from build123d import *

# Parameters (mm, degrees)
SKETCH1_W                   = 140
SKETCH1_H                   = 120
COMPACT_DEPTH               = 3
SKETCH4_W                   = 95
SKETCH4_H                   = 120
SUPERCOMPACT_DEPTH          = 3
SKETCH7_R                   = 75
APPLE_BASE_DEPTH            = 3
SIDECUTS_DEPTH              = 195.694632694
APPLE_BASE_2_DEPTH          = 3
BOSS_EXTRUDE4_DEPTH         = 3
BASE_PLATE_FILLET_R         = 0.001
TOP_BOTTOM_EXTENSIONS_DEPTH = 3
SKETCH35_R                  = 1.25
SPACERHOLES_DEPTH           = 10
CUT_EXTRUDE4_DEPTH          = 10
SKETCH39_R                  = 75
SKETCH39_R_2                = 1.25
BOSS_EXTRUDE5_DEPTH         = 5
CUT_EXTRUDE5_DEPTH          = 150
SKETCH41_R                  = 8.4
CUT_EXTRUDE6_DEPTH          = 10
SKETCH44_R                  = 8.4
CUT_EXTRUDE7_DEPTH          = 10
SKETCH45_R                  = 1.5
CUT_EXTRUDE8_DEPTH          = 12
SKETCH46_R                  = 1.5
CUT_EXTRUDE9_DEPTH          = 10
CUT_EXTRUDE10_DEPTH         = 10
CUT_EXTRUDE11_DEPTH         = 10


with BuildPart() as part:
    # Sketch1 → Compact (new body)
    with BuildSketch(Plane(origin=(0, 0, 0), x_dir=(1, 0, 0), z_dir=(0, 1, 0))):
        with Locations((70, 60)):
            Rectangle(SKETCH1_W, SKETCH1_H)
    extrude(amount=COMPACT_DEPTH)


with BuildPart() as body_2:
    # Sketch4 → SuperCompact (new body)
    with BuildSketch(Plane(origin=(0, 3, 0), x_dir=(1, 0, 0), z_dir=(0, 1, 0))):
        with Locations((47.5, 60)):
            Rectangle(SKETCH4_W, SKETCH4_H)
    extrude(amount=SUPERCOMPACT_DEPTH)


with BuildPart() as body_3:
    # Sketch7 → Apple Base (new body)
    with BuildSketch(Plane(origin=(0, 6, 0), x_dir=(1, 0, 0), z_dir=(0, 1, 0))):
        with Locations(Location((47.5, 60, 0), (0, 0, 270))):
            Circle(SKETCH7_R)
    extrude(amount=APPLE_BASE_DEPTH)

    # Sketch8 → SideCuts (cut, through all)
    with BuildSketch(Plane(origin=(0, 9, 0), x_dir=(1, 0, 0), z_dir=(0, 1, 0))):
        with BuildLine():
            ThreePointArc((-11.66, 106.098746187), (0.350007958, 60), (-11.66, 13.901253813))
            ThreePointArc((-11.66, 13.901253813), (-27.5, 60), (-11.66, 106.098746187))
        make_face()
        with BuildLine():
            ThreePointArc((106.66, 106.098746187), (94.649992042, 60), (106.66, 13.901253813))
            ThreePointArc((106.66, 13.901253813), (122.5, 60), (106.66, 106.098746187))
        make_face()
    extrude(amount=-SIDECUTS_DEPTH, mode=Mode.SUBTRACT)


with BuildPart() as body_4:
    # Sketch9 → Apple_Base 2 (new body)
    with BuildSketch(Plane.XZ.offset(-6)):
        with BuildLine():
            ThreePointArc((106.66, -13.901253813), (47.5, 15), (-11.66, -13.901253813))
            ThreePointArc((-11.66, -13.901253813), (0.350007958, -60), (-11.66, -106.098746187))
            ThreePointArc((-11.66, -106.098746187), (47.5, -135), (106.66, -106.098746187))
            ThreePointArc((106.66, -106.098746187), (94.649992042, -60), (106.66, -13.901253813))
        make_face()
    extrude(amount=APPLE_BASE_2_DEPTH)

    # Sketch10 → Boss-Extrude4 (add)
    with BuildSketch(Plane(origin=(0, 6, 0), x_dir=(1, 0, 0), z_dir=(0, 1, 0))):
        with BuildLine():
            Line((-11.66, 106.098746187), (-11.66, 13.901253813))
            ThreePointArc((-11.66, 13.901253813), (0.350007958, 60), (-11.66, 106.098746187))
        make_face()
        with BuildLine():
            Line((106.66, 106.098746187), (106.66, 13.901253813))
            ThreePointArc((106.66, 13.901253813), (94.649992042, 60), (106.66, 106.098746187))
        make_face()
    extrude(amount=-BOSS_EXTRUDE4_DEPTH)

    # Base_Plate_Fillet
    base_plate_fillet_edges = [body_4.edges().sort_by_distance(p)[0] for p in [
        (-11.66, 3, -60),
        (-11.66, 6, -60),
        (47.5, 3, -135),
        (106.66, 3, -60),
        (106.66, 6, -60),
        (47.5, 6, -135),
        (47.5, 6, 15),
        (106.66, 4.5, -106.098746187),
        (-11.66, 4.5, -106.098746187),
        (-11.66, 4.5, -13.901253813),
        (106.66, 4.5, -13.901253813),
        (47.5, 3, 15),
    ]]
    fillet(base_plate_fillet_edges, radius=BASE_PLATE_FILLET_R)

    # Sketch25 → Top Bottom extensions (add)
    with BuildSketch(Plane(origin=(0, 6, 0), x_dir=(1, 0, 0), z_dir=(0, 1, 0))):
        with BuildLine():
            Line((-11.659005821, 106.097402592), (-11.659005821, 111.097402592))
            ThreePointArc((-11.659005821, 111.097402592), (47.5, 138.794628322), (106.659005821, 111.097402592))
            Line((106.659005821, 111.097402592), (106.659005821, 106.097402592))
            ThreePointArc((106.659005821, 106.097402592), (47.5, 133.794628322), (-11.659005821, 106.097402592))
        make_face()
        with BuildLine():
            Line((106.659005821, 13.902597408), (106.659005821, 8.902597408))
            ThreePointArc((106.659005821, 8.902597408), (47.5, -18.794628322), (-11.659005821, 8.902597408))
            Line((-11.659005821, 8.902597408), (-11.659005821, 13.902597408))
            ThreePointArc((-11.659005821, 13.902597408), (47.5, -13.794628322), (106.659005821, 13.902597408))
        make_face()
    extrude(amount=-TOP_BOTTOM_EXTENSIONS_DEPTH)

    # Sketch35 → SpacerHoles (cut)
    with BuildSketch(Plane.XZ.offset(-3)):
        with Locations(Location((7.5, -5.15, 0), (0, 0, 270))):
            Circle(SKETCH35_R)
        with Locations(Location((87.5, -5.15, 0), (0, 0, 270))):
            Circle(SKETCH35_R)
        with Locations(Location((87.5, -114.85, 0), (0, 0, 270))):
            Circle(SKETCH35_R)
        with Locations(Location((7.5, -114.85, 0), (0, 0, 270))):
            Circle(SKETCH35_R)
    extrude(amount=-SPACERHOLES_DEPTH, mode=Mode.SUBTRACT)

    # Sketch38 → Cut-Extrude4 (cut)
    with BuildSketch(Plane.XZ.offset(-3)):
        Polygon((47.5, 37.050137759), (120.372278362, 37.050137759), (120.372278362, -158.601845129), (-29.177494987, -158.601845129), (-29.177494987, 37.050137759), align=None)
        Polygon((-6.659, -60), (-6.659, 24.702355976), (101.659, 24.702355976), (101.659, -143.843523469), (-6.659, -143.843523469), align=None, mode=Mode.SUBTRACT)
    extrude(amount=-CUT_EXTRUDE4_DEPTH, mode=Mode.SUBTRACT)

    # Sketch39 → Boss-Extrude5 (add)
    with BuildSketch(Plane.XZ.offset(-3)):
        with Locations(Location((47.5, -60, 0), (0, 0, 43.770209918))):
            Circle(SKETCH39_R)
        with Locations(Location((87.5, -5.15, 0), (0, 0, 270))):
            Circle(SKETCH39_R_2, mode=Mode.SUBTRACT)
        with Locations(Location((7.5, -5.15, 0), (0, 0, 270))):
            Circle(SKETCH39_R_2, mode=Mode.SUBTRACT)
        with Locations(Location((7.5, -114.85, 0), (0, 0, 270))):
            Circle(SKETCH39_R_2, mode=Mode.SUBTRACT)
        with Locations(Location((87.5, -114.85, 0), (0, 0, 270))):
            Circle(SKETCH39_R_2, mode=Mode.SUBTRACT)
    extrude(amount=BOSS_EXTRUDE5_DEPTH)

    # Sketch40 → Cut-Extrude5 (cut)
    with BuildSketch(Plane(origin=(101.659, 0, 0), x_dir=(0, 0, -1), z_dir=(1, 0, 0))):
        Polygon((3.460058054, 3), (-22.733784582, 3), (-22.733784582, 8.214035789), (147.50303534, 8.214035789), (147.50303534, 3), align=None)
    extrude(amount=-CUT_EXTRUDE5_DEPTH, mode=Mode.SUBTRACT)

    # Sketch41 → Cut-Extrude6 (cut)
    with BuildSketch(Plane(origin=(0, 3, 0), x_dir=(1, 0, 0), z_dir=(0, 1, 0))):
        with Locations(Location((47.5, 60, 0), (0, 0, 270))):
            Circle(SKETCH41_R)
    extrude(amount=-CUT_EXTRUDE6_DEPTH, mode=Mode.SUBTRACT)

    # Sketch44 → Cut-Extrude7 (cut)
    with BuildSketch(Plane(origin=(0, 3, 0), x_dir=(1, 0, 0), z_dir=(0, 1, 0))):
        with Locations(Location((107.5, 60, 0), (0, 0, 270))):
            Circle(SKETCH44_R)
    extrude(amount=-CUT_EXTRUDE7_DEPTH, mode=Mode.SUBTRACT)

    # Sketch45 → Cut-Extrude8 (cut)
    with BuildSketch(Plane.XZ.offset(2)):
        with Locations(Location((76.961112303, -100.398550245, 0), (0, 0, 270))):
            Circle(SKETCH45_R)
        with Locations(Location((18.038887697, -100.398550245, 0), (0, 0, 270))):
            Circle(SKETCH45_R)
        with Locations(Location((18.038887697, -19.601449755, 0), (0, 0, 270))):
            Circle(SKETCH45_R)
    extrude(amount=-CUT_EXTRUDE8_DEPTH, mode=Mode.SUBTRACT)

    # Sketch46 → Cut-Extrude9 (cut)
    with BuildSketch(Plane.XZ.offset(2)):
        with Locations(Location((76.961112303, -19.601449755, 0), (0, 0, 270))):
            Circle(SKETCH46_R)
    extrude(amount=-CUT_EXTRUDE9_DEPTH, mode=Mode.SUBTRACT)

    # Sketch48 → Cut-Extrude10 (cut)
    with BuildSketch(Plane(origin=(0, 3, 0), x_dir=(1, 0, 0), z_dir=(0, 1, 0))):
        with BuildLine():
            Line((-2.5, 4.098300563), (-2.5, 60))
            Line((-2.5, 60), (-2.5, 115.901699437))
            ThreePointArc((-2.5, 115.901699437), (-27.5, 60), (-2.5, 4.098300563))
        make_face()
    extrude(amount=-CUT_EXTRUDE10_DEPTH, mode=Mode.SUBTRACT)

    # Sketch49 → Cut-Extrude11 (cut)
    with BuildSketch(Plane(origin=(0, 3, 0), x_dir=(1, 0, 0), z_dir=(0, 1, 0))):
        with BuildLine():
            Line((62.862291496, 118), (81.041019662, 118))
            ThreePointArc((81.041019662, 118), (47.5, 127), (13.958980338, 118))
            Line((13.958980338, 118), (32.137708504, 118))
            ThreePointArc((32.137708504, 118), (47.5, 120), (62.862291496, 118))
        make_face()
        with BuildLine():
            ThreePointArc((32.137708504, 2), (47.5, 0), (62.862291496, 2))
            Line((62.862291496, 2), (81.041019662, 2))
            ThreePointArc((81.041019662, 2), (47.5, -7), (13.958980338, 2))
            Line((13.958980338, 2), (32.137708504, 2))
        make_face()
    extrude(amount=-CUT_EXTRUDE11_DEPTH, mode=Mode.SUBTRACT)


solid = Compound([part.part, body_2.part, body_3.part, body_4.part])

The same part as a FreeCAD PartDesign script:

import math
import FreeCAD as App
import Part
import Sketcher

V = App.Vector


def add_polygon(sketch, points):
    """Adds a closed chain of lines whose ends are joined by coincident constraints."""
    first, n = sketch.GeometryCount, len(points)
    for a, b in zip(points, points[1:] + points[:1]):
        sketch.addGeometry(Part.LineSegment(App.Vector(*a, 0), App.Vector(*b, 0)), False)
    for i in range(n):
        sketch.addConstraint(Sketcher.Constraint("Coincident", first + i, 2, first + (i + 1) % n, 1))

doc = App.newDocument("Part")
body = doc.addObject("PartDesign::Body", "Body")

sketch1 = body.newObject("Sketcher::SketchObject", "Sketch")
sketch1.AttachmentSupport = (doc.getObject("XZ_Plane"), [""])
sketch1.MapMode = "FlatFace"
add_polygon(sketch1, [(0, -120), (0, 0), (140, 0), (140, -120)])
sketch1.addConstraint(Sketcher.Constraint("Vertical", 0))
sketch1.addConstraint(Sketcher.Constraint("Horizontal", 1))
sketch1.addConstraint(Sketcher.Constraint("Vertical", 2))
sketch1.addConstraint(Sketcher.Constraint("Horizontal", 3))
sketch1.addConstraint(Sketcher.Constraint("Coincident", 0, 2, -1, 1))
sketch1.addConstraint(Sketcher.Constraint("DistanceX", 1, 1, 1, 2, 140.0))
sketch1.addConstraint(Sketcher.Constraint("DistanceY", 0, 1, 0, 2, 120.0))
pad1 = body.newObject("PartDesign::Pad", "Pad")
pad1.Profile = sketch1
pad1.Length = 3
pad1.Reversed = True
body2 = doc.addObject("PartDesign::Body", "Body001")

sketch2 = body2.newObject("Sketcher::SketchObject", "Sketch001")
sketch2.AttachmentSupport = (doc.getObject("XZ_Plane001"), [""])
sketch2.MapMode = "FlatFace"
sketch2.AttachmentOffset = App.Placement(V(0, 0, -3), App.Rotation())
add_polygon(sketch2, [(0, -120), (0, 0), (95, 0), (95, -120)])
sketch2.addConstraint(Sketcher.Constraint("Vertical", 0))
sketch2.addConstraint(Sketcher.Constraint("Horizontal", 1))
sketch2.addConstraint(Sketcher.Constraint("Vertical", 2))
sketch2.addConstraint(Sketcher.Constraint("Horizontal", 3))
sketch2.addConstraint(Sketcher.Constraint("Coincident", 0, 2, -1, 1))
sketch2.addConstraint(Sketcher.Constraint("DistanceX", 1, 1, 1, 2, 95.0))
sketch2.addConstraint(Sketcher.Constraint("DistanceY", 0, 1, 0, 2, 120.0))
pad2 = body2.newObject("PartDesign::Pad", "Pad001")
pad2.Profile = sketch2
pad2.Length = 3
pad2.Reversed = True
body3 = doc.addObject("PartDesign::Body", "Body002")

sketch3 = body3.newObject("Sketcher::SketchObject", "Sketch002")
sketch3.AttachmentSupport = (doc.getObject("XZ_Plane002"), [""])
sketch3.MapMode = "FlatFace"
sketch3.AttachmentOffset = App.Placement(V(0, 0, -6), App.Rotation())
sketch3.addGeometry(Part.Circle(V(48, -60, 0), V(0, 0, 1), 75), False)
sketch3.addConstraint(Sketcher.Constraint("Diameter", 0, 150.0))
sketch3.addConstraint(Sketcher.Constraint("DistanceY", 0, 3, -1, 1, 60.0))
sketch3.addConstraint(Sketcher.Constraint("DistanceX", -1, 1, 0, 3, 47.5))
pad3 = body3.newObject("PartDesign::Pad", "Pad002")
pad3.Profile = sketch3
pad3.Length = 3
pad3.Reversed = True

sketch4 = body3.newObject("Sketcher::SketchObject", "Sketch003")
sketch4.AttachmentSupport = (doc.getObject("XZ_Plane002"), [""])
sketch4.MapMode = "FlatFace"
sketch4.AttachmentOffset = App.Placement(V(0, 0, -9), App.Rotation())
sketch4.addGeometry(Part.ArcOfCircle(Part.Circle(V(-94, -60, 0), V(0, 0, 1), 94), math.radians(-29), math.radians(29)), False)
sketch4.addGeometry(Part.ArcOfCircle(Part.Circle(V(48, -60, 0), V(0, 0, 1), 75), math.radians(142), math.radians(218)), False)
sketch4.addGeometry(Part.ArcOfCircle(Part.Circle(V(189, -60, 0), V(0, 0, 1), 94), math.radians(151), math.radians(209)), False)
sketch4.addGeometry(Part.ArcOfCircle(Part.Circle(V(48, -60, 0), V(0, 0, 1), 75), math.radians(-38), math.radians(38)), False)
sketch4.addConstraint(Sketcher.Constraint("Coincident", 0, 1, 1, 2))
sketch4.addConstraint(Sketcher.Constraint("Coincident", 1, 1, 0, 2))
sketch4.addConstraint(Sketcher.Constraint("Coincident", 2, 1, 3, 2))
sketch4.addConstraint(Sketcher.Constraint("Coincident", 3, 1, 2, 2))
sketch4.addConstraint(Sketcher.Constraint("Coincident", 3, 3, 1, 3))
sketch4.addConstraint(Sketcher.Constraint("Equal", 0, 2))
sketch4.addConstraint(Sketcher.Constraint("Equal", 1, 3))
sketch4.addConstraint(Sketcher.Constraint("Horizontal", 0, 3, 1, 3))
sketch4.addConstraint(Sketcher.Constraint("Horizontal", 1, 3, 2, 3))
sketch4.addConstraint(Sketcher.Constraint("Horizontal", 1, 1, 2, 1))
sketch4.addConstraint(Sketcher.Constraint("Radius", 1, 75.0))
sketch4.addConstraint(Sketcher.Constraint("DistanceY", 0, 3, -1, 1, 60.0))
sketch4.addConstraint(Sketcher.Constraint("DistanceX", -1, 1, 1, 3, 47.5))
sketch4.addConstraint(Sketcher.Constraint("DistanceX", 0, 1, -1, 1, 11.66))
sketch4.addConstraint(Sketcher.Constraint("Radius", 0, 94.476819))
pocket1 = body3.newObject("PartDesign::Pocket", "Pocket")
pocket1.Profile = sketch4
pocket1.Type = "ThroughAll"
pocket1.Reversed = True
body4 = doc.addObject("PartDesign::Body", "Body003")

sketch5 = body4.newObject("Sketcher::SketchObject", "Sketch004")
sketch5.AttachmentSupport = (doc.getObject("XZ_Plane003"), [""])
sketch5.MapMode = "FlatFace"
sketch5.AttachmentOffset = App.Placement(V(0, 0, -6), App.Rotation())
sketch5.addGeometry(Part.ArcOfCircle(Part.Circle(V(48, -60, 0), V(0, 0, 1), 75), math.radians(38), math.radians(142)), False)
sketch5.addGeometry(Part.ArcOfCircle(Part.Circle(V(-94, -60, 0), V(0, 0, 1), 94), math.radians(-29), math.radians(29)), False)
sketch5.addGeometry(Part.ArcOfCircle(Part.Circle(V(48, -60, 0), V(0, 0, 1), 75), math.radians(-142), math.radians(-38)), False)
sketch5.addGeometry(Part.ArcOfCircle(Part.Circle(V(189, -60, 0), V(0, 0, 1), 94), math.radians(151), math.radians(209)), False)
sketch5.addConstraint(Sketcher.Constraint("Coincident", 0, 2, 1, 2))
sketch5.addConstraint(Sketcher.Constraint("Coincident", 1, 1, 2, 1))
sketch5.addConstraint(Sketcher.Constraint("Coincident", 2, 2, 3, 2))
sketch5.addConstraint(Sketcher.Constraint("Coincident", 3, 1, 0, 1))
sketch5.addConstraint(Sketcher.Constraint("Coincident", 2, 3, 0, 3))
sketch5.addConstraint(Sketcher.Constraint("Equal", 0, 2))
sketch5.addConstraint(Sketcher.Constraint("Equal", 1, 3))
sketch5.addConstraint(Sketcher.Constraint("Horizontal", 0, 3, 1, 3))
sketch5.addConstraint(Sketcher.Constraint("Horizontal", 2, 3, 3, 3))
sketch5.addConstraint(Sketcher.Constraint("Horizontal", 1, 1, 2, 2))
sketch5.addConstraint(Sketcher.Constraint("Radius", 0, 75.0))
sketch5.addConstraint(Sketcher.Constraint("DistanceY", 0, 3, -1, 1, 60.0))
sketch5.addConstraint(Sketcher.Constraint("DistanceX", -1, 1, 0, 3, 47.5))
sketch5.addConstraint(Sketcher.Constraint("DistanceX", 0, 2, -1, 1, 11.66))
sketch5.addConstraint(Sketcher.Constraint("Radius", 1, 94.476819))
pad4 = body4.newObject("PartDesign::Pad", "Pad003")
pad4.Profile = sketch5
pad4.Length = 3

sketch6 = body4.newObject("Sketcher::SketchObject", "Sketch005")
sketch6.AttachmentSupport = (doc.getObject("XZ_Plane003"), [""])
sketch6.MapMode = "FlatFace"
sketch6.AttachmentOffset = App.Placement(V(0, 0, -6), App.Rotation())
sketch6.addGeometry(Part.LineSegment(V(-12, -106, 0), V(-12, -14, 0)), False)
sketch6.addGeometry(Part.ArcOfCircle(Part.Circle(V(-94, -60, 0), V(0, 0, 1), 94), math.radians(-29), math.radians(29)), False)
sketch6.addGeometry(Part.LineSegment(V(107, -14, 0), V(107, -106, 0)), False)
sketch6.addGeometry(Part.ArcOfCircle(Part.Circle(V(189, -60, 0), V(0, 0, 1), 94), math.radians(151), math.radians(209)), False)
sketch6.addConstraint(Sketcher.Constraint("Coincident", 0, 1, 1, 1))
sketch6.addConstraint(Sketcher.Constraint("Coincident", 1, 2, 0, 2))
sketch6.addConstraint(Sketcher.Constraint("Coincident", 2, 1, 3, 1))
sketch6.addConstraint(Sketcher.Constraint("Coincident", 3, 2, 2, 2))
sketch6.addConstraint(Sketcher.Constraint("Vertical", 0))
sketch6.addConstraint(Sketcher.Constraint("Vertical", 2))
sketch6.addConstraint(Sketcher.Constraint("Equal", 1, 3))
sketch6.addConstraint(Sketcher.Constraint("Horizontal", 1, 3, 3, 3))
sketch6.addConstraint(Sketcher.Constraint("Horizontal", 1, 2, 2, 1))
sketch6.addConstraint(Sketcher.Constraint("DistanceY", 1, 3, -1, 1, 60.0))
sketch6.addConstraint(Sketcher.Constraint("DistanceX", 0, 1, -1, 1, 11.66))
sketch6.addConstraint(Sketcher.Constraint("DistanceX", -1, 1, 2, 1, 106.66))
sketch6.addConstraint(Sketcher.Constraint("Radius", 1, 94.476819))
sketch6.addConstraint(Sketcher.Constraint("DistanceY", 0, 1, 0, 2, 92.197492))
pad5 = body4.newObject("PartDesign::Pad", "Pad004")
pad5.Profile = sketch6
pad5.Length = 3
doc.recompute()

fillet = body4.newObject("PartDesign::Fillet", "Fillet")
fillet.Base = (pad5, ["Edge1"])
fillet.UseAllEdges = True
fillet.Radius = 0.001

sketch7 = body4.newObject("Sketcher::SketchObject", "Sketch006")
sketch7.AttachmentSupport = (doc.getObject("XZ_Plane003"), [""])
sketch7.MapMode = "FlatFace"
sketch7.AttachmentOffset = App.Placement(V(0, 0, -6), App.Rotation())
sketch7.addGeometry(Part.LineSegment(V(-12, -111, 0), V(-12, -106, 0)), False)
sketch7.addGeometry(Part.ArcOfCircle(Part.Circle(V(48, -57, 0), V(0, 0, 1), 77), math.radians(-140), math.radians(-40)), False)
sketch7.addGeometry(Part.LineSegment(V(107, -106, 0), V(107, -111, 0)), False)
sketch7.addGeometry(Part.ArcOfCircle(Part.Circle(V(48, -62, 0), V(0, 0, 1), 77), math.radians(-140), math.radians(-40)), False)
sketch7.addGeometry(Part.LineSegment(V(107, -9, 0), V(107, -14, 0)), False)
sketch7.addGeometry(Part.ArcOfCircle(Part.Circle(V(48, -63, 0), V(0, 0, 1), 77), math.radians(40), math.radians(140)), False)
sketch7.addGeometry(Part.LineSegment(V(-12, -14, 0), V(-12, -9, 0)), False)
sketch7.addGeometry(Part.ArcOfCircle(Part.Circle(V(48, -58, 0), V(0, 0, 1), 77), math.radians(40), math.radians(140)), False)
sketch7.addConstraint(Sketcher.Constraint("Coincident", 0, 2, 1, 1))
sketch7.addConstraint(Sketcher.Constraint("Coincident", 1, 2, 2, 1))
sketch7.addConstraint(Sketcher.Constraint("Coincident", 2, 2, 3, 2))
sketch7.addConstraint(Sketcher.Constraint("Coincident", 3, 1, 0, 1))
sketch7.addConstraint(Sketcher.Constraint("Coincident", 4, 2, 5, 1))
sketch7.addConstraint(Sketcher.Constraint("Coincident", 5, 2, 6, 1))
sketch7.addConstraint(Sketcher.Constraint("Coincident", 6, 2, 7, 2))
sketch7.addConstraint(Sketcher.Constraint("Coincident", 7, 1, 4, 1))
sketch7.addConstraint(Sketcher.Constraint("Vertical", 0))
sketch7.addConstraint(Sketcher.Constraint("Vertical", 2))
sketch7.addConstraint(Sketcher.Constraint("Vertical", 4))
sketch7.addConstraint(Sketcher.Constraint("Vertical", 6))
sketch7.addConstraint(Sketcher.Constraint("Equal", 1, 3))
sketch7.addConstraint(Sketcher.Constraint("Equal", 3, 5))
sketch7.addConstraint(Sketcher.Constraint("Equal", 5, 7))
sketch7.addConstraint(Sketcher.Constraint("Horizontal", 0, 2, 1, 2))
sketch7.addConstraint(Sketcher.Constraint("Horizontal", 2, 2, 3, 1))
sketch7.addConstraint(Sketcher.Constraint("Horizontal", 4, 2, 5, 2))
sketch7.addConstraint(Sketcher.Constraint("Horizontal", 6, 2, 7, 1))
sketch7.addConstraint(Sketcher.Constraint("Vertical", 3, 3, 5, 3))
sketch7.addConstraint(Sketcher.Constraint("Vertical", 2, 2, 4, 2))
sketch7.addConstraint(Sketcher.Constraint("Equal", 2, 4))
sketch7.addConstraint(Sketcher.Constraint("DistanceY", 0, 1, 0, 2, 5.0))
sketch7.addConstraint(Sketcher.Constraint("DistanceX", -1, 1, 1, 3, 47.5))
sketch7.addConstraint(Sketcher.Constraint("Radius", 1, 77.028009))
sketch7.addConstraint(Sketcher.Constraint("DistanceY", 1, 3, -1, 1, 56.76662))
sketch7.addConstraint(Sketcher.Constraint("DistanceY", 5, 3, -1, 1, 63.23338))
sketch7.addConstraint(Sketcher.Constraint("DistanceX", 0, 2, 1, 2, 118.318012))
pad6 = body4.newObject("PartDesign::Pad", "Pad005")
pad6.Profile = sketch7
pad6.Length = 3

sketch8 = body4.newObject("Sketcher::SketchObject", "Sketch007")
sketch8.AttachmentSupport = (doc.getObject("XZ_Plane003"), [""])
sketch8.MapMode = "FlatFace"
sketch8.AttachmentOffset = App.Placement(V(0, 0, -3), App.Rotation())
sketch8.addGeometry(Part.Circle(V(7.5, -5.2, 0), V(0, 0, 1), 1.2), False)
sketch8.addGeometry(Part.Circle(V(87.5, -5.2, 0), V(0, 0, 1), 1.2), False)
sketch8.addGeometry(Part.Circle(V(87.5, -114.8, 0), V(0, 0, 1), 1.2), False)
sketch8.addGeometry(Part.Circle(V(7.5, -114.8, 0), V(0, 0, 1), 1.2), False)
sketch8.addConstraint(Sketcher.Constraint("Equal", 0, 1))
sketch8.addConstraint(Sketcher.Constraint("Equal", 1, 2))
sketch8.addConstraint(Sketcher.Constraint("Equal", 2, 3))
sketch8.addConstraint(Sketcher.Constraint("Horizontal", 0, 3, 1, 3))
sketch8.addConstraint(Sketcher.Constraint("Horizontal", 2, 3, 3, 3))
sketch8.addConstraint(Sketcher.Constraint("Vertical", 1, 3, 2, 3))
sketch8.addConstraint(Sketcher.Constraint("Vertical", 0, 3, 3, 3))
sketch8.addConstraint(Sketcher.Constraint("Diameter", 0, 2.5))
sketch8.addConstraint(Sketcher.Constraint("DistanceX", 0, 3, 1, 3, 80.0))
sketch8.addConstraint(Sketcher.Constraint("DistanceX", -1, 1, 0, 3, 7.5))
sketch8.addConstraint(Sketcher.Constraint("DistanceY", 2, 3, 1, 3, 109.7))
sketch8.addConstraint(Sketcher.Constraint("DistanceY", 0, 3, -1, 1, 5.15))
pocket2 = body4.newObject("PartDesign::Pocket", "Pocket001")
pocket2.Profile = sketch8
pocket2.Length = 10

sketch9 = body4.newObject("Sketcher::SketchObject", "Sketch008")
sketch9.AttachmentSupport = (doc.getObject("XZ_Plane003"), [""])
sketch9.MapMode = "FlatFace"
sketch9.AttachmentOffset = App.Placement(V(0, 0, -3), App.Rotation())
add_polygon(sketch9, [(120, 37), (-29, 37), (-29, -159), (120, -159)])
add_polygon(sketch9, [(-7, 25), (102, 25), (102, -144), (-7, -144)])
sketch9.addConstraint(Sketcher.Constraint("Horizontal", 0))
sketch9.addConstraint(Sketcher.Constraint("Vertical", 1))
sketch9.addConstraint(Sketcher.Constraint("Horizontal", 2))
sketch9.addConstraint(Sketcher.Constraint("Vertical", 3))
sketch9.addConstraint(Sketcher.Constraint("Horizontal", 4))
sketch9.addConstraint(Sketcher.Constraint("Vertical", 5))
sketch9.addConstraint(Sketcher.Constraint("Horizontal", 6))
sketch9.addConstraint(Sketcher.Constraint("Vertical", 7))
sketch9.addConstraint(Sketcher.Constraint("DistanceX", 4, 1, 4, 2, 108.318))
sketch9.addConstraint(Sketcher.Constraint("DistanceX", -1, 1, 4, 2, 101.659))
sketch9.addConstraint(Sketcher.Constraint("DistanceY", 5, 2, 5, 1, 168.545879))
sketch9.addConstraint(Sketcher.Constraint("DistanceY", 2, 2, 4, 2, 183.304201))
sketch9.addConstraint(Sketcher.Constraint("DistanceX", 0, 2, 0, 1, 149.549773))
sketch9.addConstraint(Sketcher.Constraint("DistanceY", 1, 2, 1, 1, 195.651983))
sketch9.addConstraint(Sketcher.Constraint("DistanceX", -1, 1, 2, 2, 120.372278))
sketch9.addConstraint(Sketcher.Constraint("DistanceY", -1, 1, 0, 2, 37.050138))
pocket3 = body4.newObject("PartDesign::Pocket", "Pocket002")
pocket3.Profile = sketch9
pocket3.Length = 10

sketch10 = body4.newObject("Sketcher::SketchObject", "Sketch009")
sketch10.AttachmentSupport = (doc.getObject("XZ_Plane003"), [""])
sketch10.MapMode = "FlatFace"
sketch10.AttachmentOffset = App.Placement(V(0, 0, -3), App.Rotation())
sketch10.addGeometry(Part.Circle(V(47.5, -60, 0), V(0, 0, 1), 75), False)
sketch10.addGeometry(Part.Circle(V(87.5, -114.8, 0), V(0, 0, 1), 1.2), False)
sketch10.addGeometry(Part.Circle(V(7.5, -114.8, 0), V(0, 0, 1), 1.2), False)
sketch10.addGeometry(Part.Circle(V(87.5, -5.2, 0), V(0, 0, 1), 1.2), False)
sketch10.addGeometry(Part.Circle(V(7.5, -5.2, 0), V(0, 0, 1), 1.2), False)
sketch10.addConstraint(Sketcher.Constraint("Equal", 1, 2))
sketch10.addConstraint(Sketcher.Constraint("Equal", 2, 3))
sketch10.addConstraint(Sketcher.Constraint("Equal", 3, 4))
sketch10.addConstraint(Sketcher.Constraint("Horizontal", 1, 3, 2, 3))
sketch10.addConstraint(Sketcher.Constraint("Horizontal", 3, 3, 4, 3))
sketch10.addConstraint(Sketcher.Constraint("Vertical", 1, 3, 3, 3))
sketch10.addConstraint(Sketcher.Constraint("Vertical", 2, 3, 4, 3))
sketch10.addConstraint(Sketcher.Constraint("Diameter", 0, 150.0))
sketch10.addConstraint(Sketcher.Constraint("Diameter", 1, 2.5))
sketch10.addConstraint(Sketcher.Constraint("DistanceY", 0, 3, -1, 1, 60.0))
sketch10.addConstraint(Sketcher.Constraint("DistanceX", 0, 3, 1, 3, 40.0))
sketch10.addConstraint(Sketcher.Constraint("DistanceX", 2, 3, 0, 3, 40.0))
sketch10.addConstraint(Sketcher.Constraint("DistanceX", -1, 1, 0, 3, 47.5))
sketch10.addConstraint(Sketcher.Constraint("DistanceY", 1, 3, 3, 3, 109.7))
sketch10.addConstraint(Sketcher.Constraint("DistanceY", 1, 3, -1, 1, 114.85))
pad7 = body4.newObject("PartDesign::Pad", "Pad006")
pad7.Profile = sketch10
pad7.Length = 5

sketch11 = body4.newObject("Sketcher::SketchObject", "Sketch010")
sketch11.AttachmentSupport = (doc.getObject("YZ_Plane003"), [""])
sketch11.MapMode = "FlatFace"
sketch11.AttachmentOffset = App.Placement(V(0, 0, 101.659), App.Rotation())
add_polygon(sketch11, [(3, 23), (3, -148), (8, -148), (8, 23)])
sketch11.addConstraint(Sketcher.Constraint("Vertical", 0))
sketch11.addConstraint(Sketcher.Constraint("Horizontal", 1))
sketch11.addConstraint(Sketcher.Constraint("Vertical", 2))
sketch11.addConstraint(Sketcher.Constraint("Horizontal", 3))
sketch11.addConstraint(Sketcher.Constraint("DistanceX", -1, 1, 0, 2, 3.0))
sketch11.addConstraint(Sketcher.Constraint("DistanceY", 0, 2, 0, 1, 170.23682))
sketch11.addConstraint(Sketcher.Constraint("DistanceX", 1, 1, 1, 2, 5.214036))
sketch11.addConstraint(Sketcher.Constraint("DistanceY", 0, 2, -1, 1, 147.503035))
pocket4 = body4.newObject("PartDesign::Pocket", "Pocket003")
pocket4.Profile = sketch11
pocket4.Length = 150

sketch12 = body4.newObject("Sketcher::SketchObject", "Sketch011")
sketch12.AttachmentSupport = (doc.getObject("XZ_Plane003"), [""])
sketch12.MapMode = "FlatFace"
sketch12.AttachmentOffset = App.Placement(V(0, 0, -3), App.Rotation())
sketch12.addGeometry(Part.Circle(V(48, -60, 0), V(0, 0, 1), 8), False)
sketch12.addConstraint(Sketcher.Constraint("Diameter", 0, 16.8))
sketch12.addConstraint(Sketcher.Constraint("DistanceY", 0, 3, -1, 1, 60.0))
sketch12.addConstraint(Sketcher.Constraint("DistanceX", -1, 1, 0, 3, 47.5))
pocket5 = body4.newObject("PartDesign::Pocket", "Pocket004")
pocket5.Profile = sketch12
pocket5.Length = 10
pocket5.Reversed = True

sketch13 = body4.newObject("Sketcher::SketchObject", "Sketch012")
sketch13.AttachmentSupport = (doc.getObject("XZ_Plane003"), [""])
sketch13.MapMode = "FlatFace"
sketch13.AttachmentOffset = App.Placement(V(0, 0, -3), App.Rotation())
sketch13.addGeometry(Part.Circle(V(108, -60, 0), V(0, 0, 1), 8), False)
sketch13.addConstraint(Sketcher.Constraint("Diameter", 0, 16.8))
sketch13.addConstraint(Sketcher.Constraint("DistanceY", 0, 3, -1, 1, 60.0))
sketch13.addConstraint(Sketcher.Constraint("DistanceX", -1, 1, 0, 3, 107.5))
pocket6 = body4.newObject("PartDesign::Pocket", "Pocket005")
pocket6.Profile = sketch13
pocket6.Length = 10
pocket6.Reversed = True

sketch14 = body4.newObject("Sketcher::SketchObject", "Sketch013")
sketch14.AttachmentSupport = (doc.getObject("XZ_Plane003"), [""])
sketch14.MapMode = "FlatFace"
sketch14.AttachmentOffset = App.Placement(V(0, 0, 2), App.Rotation())
sketch14.addGeometry(Part.Circle(V(77, -100.4, 0), V(0, 0, 1), 1.5), False)
sketch14.addGeometry(Part.Circle(V(18, -100.4, 0), V(0, 0, 1), 1.5), False)
sketch14.addGeometry(Part.Circle(V(18, -19.6, 0), V(0, 0, 1), 1.5), False)
sketch14.addConstraint(Sketcher.Constraint("Equal", 0, 1))
sketch14.addConstraint(Sketcher.Constraint("Equal", 1, 2))
sketch14.addConstraint(Sketcher.Constraint("Horizontal", 0, 3, 1, 3))
sketch14.addConstraint(Sketcher.Constraint("Vertical", 1, 3, 2, 3))
sketch14.addConstraint(Sketcher.Constraint("Diameter", 0, 3.0))
sketch14.addConstraint(Sketcher.Constraint("DistanceY", 1, 3, 2, 3, 80.7971))
sketch14.addConstraint(Sketcher.Constraint("DistanceY", 0, 3, -1, 1, 100.39855))
sketch14.addConstraint(Sketcher.Constraint("DistanceX", -1, 1, 0, 3, 76.961112))
sketch14.addConstraint(Sketcher.Constraint("DistanceX", -1, 1, 1, 3, 18.038888))
pocket7 = body4.newObject("PartDesign::Pocket", "Pocket006")
pocket7.Profile = sketch14
pocket7.Length = 12

sketch15 = body4.newObject("Sketcher::SketchObject", "Sketch014")
sketch15.AttachmentSupport = (doc.getObject("XZ_Plane003"), [""])
sketch15.MapMode = "FlatFace"
sketch15.AttachmentOffset = App.Placement(V(0, 0, 2), App.Rotation())
sketch15.addGeometry(Part.Circle(V(77, -19.6, 0), V(0, 0, 1), 1.5), False)
sketch15.addConstraint(Sketcher.Constraint("Diameter", 0, 3.0))
sketch15.addConstraint(Sketcher.Constraint("DistanceY", 0, 3, -1, 1, 19.60145))
sketch15.addConstraint(Sketcher.Constraint("DistanceX", -1, 1, 0, 3, 76.961112))
pocket8 = body4.newObject("PartDesign::Pocket", "Pocket007")
pocket8.Profile = sketch15
pocket8.Length = 10

sketch16 = body4.newObject("Sketcher::SketchObject", "Sketch015")
sketch16.AttachmentSupport = (doc.getObject("XZ_Plane003"), [""])
sketch16.MapMode = "FlatFace"
sketch16.AttachmentOffset = App.Placement(V(0, 0, -3), App.Rotation())
sketch16.addGeometry(Part.LineSegment(V(-2, -4, 0), V(-2, -116, 0)), False)
sketch16.addGeometry(Part.ArcOfCircle(Part.Circle(V(47, -60, 0), V(0, 0, 1), 75), math.radians(132), math.radians(228)), False)
sketch16.addConstraint(Sketcher.Constraint("Coincident", 0, 1, 1, 1))
sketch16.addConstraint(Sketcher.Constraint("Coincident", 1, 2, 0, 2))
sketch16.addConstraint(Sketcher.Constraint("Vertical", 0))
sketch16.addConstraint(Sketcher.Constraint("Radius", 1, 75.0))
sketch16.addConstraint(Sketcher.Constraint("DistanceY", 1, 3, -1, 1, 60.0))
sketch16.addConstraint(Sketcher.Constraint("DistanceX", 0, 1, 1, 3, 50.0))
sketch16.addConstraint(Sketcher.Constraint("DistanceX", -1, 1, 1, 3, 47.5))
pocket9 = body4.newObject("PartDesign::Pocket", "Pocket008")
pocket9.Profile = sketch16
pocket9.Length = 10
pocket9.Reversed = True

sketch17 = body4.newObject("Sketcher::SketchObject", "Sketch016")
sketch17.AttachmentSupport = (doc.getObject("XZ_Plane003"), [""])
sketch17.MapMode = "FlatFace"
sketch17.AttachmentOffset = App.Placement(V(0, 0, -3), App.Rotation())
sketch17.addGeometry(Part.LineSegment(V(63, -118, 0), V(81, -118, 0)), False)
sketch17.addGeometry(Part.ArcOfCircle(Part.Circle(V(48, -60, 0), V(0, 0, 1), 67), math.radians(-120), math.radians(-60)), False)
sketch17.addGeometry(Part.LineSegment(V(14, -118, 0), V(32, -118, 0)), False)
sketch17.addGeometry(Part.ArcOfCircle(Part.Circle(V(48, -60, 0), V(0, 0, 1), 60), math.radians(-105), math.radians(-75)), False)
sketch17.addGeometry(Part.ArcOfCircle(Part.Circle(V(48, -60, 0), V(0, 0, 1), 60), math.radians(75), math.radians(105)), False)
sketch17.addGeometry(Part.LineSegment(V(32, -2, 0), V(14, -2, 0)), False)
sketch17.addGeometry(Part.ArcOfCircle(Part.Circle(V(48, -60, 0), V(0, 0, 1), 67), math.radians(60), math.radians(120)), False)
sketch17.addGeometry(Part.LineSegment(V(81, -2, 0), V(63, -2, 0)), False)
sketch17.addConstraint(Sketcher.Constraint("Coincident", 0, 2, 1, 2))
sketch17.addConstraint(Sketcher.Constraint("Coincident", 1, 1, 2, 1))
sketch17.addConstraint(Sketcher.Constraint("Coincident", 2, 2, 3, 1))
sketch17.addConstraint(Sketcher.Constraint("Coincident", 3, 2, 0, 1))
sketch17.addConstraint(Sketcher.Constraint("Coincident", 4, 2, 5, 1))
sketch17.addConstraint(Sketcher.Constraint("Coincident", 5, 2, 6, 2))
sketch17.addConstraint(Sketcher.Constraint("Coincident", 6, 1, 7, 1))
sketch17.addConstraint(Sketcher.Constraint("Coincident", 7, 2, 4, 1))
sketch17.addConstraint(Sketcher.Constraint("Horizontal", 0))
sketch17.addConstraint(Sketcher.Constraint("Horizontal", 2))
sketch17.addConstraint(Sketcher.Constraint("Horizontal", 5))
sketch17.addConstraint(Sketcher.Constraint("Horizontal", 7))
sketch17.addConstraint(Sketcher.Constraint("Coincident", 3, 3, 1, 3))
sketch17.addConstraint(Sketcher.Constraint("Coincident", 4, 3, 1, 3))
sketch17.addConstraint(Sketcher.Constraint("Coincident", 6, 3, 1, 3))
sketch17.addConstraint(Sketcher.Constraint("Equal", 3, 4))
sketch17.addConstraint(Sketcher.Constraint("Equal", 1, 6))
sketch17.addConstraint(Sketcher.Constraint("Horizontal", 0, 2, 1, 1))
sketch17.addConstraint(Sketcher.Constraint("Horizontal", 5, 2, 6, 1))
sketch17.addConstraint(Sketcher.Constraint("Vertical", 2, 2, 4, 2))
sketch17.addConstraint(Sketcher.Constraint("Radius", 1, 67.0))
sketch17.addConstraint(Sketcher.Constraint("Radius", 3, 60.0))
sketch17.addConstraint(Sketcher.Constraint("DistanceY", 1, 3, -1, 1, 60.0))
sketch17.addConstraint(Sketcher.Constraint("DistanceY", 0, 2, -1, 1, 118.0))
sketch17.addConstraint(Sketcher.Constraint("DistanceX", -1, 1, 1, 3, 47.5))
pocket10 = body4.newObject("PartDesign::Pocket", "Pocket009")
pocket10.Profile = sketch17
pocket10.Length = 10
pocket10.Reversed = True

doc.recompute()
